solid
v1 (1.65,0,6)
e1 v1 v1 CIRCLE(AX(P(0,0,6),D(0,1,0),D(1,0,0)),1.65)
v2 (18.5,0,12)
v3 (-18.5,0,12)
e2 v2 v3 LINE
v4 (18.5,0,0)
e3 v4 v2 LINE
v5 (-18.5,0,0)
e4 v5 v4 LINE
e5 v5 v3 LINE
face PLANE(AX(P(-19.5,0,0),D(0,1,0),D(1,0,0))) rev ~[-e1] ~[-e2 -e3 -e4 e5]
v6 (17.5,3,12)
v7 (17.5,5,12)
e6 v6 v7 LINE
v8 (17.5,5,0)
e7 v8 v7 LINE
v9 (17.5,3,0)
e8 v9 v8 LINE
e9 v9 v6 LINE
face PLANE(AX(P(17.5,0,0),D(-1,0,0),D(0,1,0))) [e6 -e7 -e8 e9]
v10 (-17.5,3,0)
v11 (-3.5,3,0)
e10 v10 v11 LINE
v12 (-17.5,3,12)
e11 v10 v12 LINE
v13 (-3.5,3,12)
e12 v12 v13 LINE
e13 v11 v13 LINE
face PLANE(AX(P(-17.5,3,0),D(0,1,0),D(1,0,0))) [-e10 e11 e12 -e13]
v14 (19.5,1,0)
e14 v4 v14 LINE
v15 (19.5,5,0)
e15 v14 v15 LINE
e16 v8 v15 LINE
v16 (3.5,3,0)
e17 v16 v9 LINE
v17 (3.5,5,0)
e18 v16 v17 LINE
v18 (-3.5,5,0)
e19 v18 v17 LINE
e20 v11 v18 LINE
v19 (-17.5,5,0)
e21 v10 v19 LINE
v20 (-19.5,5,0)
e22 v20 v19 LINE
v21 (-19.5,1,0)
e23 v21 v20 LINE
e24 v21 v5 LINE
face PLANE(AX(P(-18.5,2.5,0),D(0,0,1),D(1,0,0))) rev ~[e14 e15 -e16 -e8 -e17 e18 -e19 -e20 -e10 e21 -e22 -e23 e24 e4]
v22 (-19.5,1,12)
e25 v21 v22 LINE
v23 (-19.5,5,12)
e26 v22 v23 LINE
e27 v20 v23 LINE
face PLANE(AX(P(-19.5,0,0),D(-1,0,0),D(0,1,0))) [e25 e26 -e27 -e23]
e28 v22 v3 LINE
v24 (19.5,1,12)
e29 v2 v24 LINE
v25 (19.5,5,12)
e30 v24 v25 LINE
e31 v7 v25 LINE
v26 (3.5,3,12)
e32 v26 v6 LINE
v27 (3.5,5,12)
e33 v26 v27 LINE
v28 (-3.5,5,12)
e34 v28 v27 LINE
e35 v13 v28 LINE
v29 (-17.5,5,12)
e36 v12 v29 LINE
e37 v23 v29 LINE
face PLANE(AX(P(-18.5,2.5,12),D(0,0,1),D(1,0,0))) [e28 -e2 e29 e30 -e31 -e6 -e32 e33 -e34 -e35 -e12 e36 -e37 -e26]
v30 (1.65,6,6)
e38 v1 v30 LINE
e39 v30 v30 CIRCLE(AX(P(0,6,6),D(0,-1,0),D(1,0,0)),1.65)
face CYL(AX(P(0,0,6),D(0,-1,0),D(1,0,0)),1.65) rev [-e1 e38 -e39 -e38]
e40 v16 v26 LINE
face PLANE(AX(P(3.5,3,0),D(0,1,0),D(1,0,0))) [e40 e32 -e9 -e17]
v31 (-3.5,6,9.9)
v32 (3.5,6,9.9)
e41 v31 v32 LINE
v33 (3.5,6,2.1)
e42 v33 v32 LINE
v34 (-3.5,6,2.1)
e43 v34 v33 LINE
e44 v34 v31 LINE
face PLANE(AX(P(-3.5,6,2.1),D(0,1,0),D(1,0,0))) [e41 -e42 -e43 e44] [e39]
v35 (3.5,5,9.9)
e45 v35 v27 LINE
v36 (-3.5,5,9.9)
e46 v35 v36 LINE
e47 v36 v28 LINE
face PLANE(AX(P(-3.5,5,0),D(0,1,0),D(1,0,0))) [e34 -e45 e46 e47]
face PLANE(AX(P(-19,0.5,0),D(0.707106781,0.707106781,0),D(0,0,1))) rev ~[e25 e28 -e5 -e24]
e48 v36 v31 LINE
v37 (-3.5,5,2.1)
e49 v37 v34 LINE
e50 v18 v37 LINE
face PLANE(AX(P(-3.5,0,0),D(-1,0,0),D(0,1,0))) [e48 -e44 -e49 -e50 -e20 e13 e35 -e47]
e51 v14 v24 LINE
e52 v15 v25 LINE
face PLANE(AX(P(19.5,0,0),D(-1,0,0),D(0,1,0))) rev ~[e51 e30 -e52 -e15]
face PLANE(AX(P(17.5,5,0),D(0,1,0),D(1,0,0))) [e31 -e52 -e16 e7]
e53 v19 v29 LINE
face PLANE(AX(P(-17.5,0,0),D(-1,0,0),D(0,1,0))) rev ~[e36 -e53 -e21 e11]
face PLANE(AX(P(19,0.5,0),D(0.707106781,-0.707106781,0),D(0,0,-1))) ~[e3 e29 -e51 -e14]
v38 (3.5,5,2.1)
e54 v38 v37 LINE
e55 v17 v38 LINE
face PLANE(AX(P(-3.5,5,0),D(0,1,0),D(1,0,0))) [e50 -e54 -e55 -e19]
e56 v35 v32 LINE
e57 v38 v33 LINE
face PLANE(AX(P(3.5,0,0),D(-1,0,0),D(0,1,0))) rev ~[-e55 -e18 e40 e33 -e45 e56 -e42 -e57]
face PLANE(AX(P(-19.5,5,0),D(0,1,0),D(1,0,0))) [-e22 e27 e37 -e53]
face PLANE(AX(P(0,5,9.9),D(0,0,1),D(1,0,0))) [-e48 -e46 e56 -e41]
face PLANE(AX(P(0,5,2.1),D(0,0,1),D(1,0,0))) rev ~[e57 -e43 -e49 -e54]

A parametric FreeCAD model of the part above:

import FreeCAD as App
import Part
import Sketcher


def edges_at(feature, points):
    """Names of the edges that pass closest to the given points."""
    edges = feature.Shape.Edges
    near = lambda p: min(range(len(edges)), key=lambda i: edges[i].distToShape(Part.Vertex(*p))[0])
    return sorted({f"Edge{near(p) + 1}" for p in points})


def add_polygon(sketch, points):
    """Adds a closed chain of lines whose ends are joined by coincident constraints."""
    first, n = sketch.GeometryCount, len(points)
    for a, b in zip(points, points[1:] + points[:1]):
        sketch.addGeometry(Part.LineSegment(App.Vector(*a, 0), App.Vector(*b, 0)), False)
    for i in range(n):
        sketch.addConstraint(Sketcher.Constraint("Coincident", first + i, 2, first + (i + 1) % n, 1))

doc = App.newDocument("Part")
params = doc.addObject("Spreadsheet::Sheet", "Params")
for row, (alias, value) in enumerate([
    ("sketch1_diameter", "3.3 mm"),
    ("pad1_length", "10 mm"),
    ("sketch2_width", "7 mm"),
    ("sketch2_height", "5 mm"),
    ("pad2_length", "12 mm"),
    ("sketch3_width", "14 mm"),
    ("sketch3_height", "3 mm"),
    ("pad3_length", "12 mm"),
    ("sketch4_width", "2 mm"),
    ("sketch4_height", "5 mm"),
    ("pad4_length", "12 mm"),
    ("sketch5_width", "14 mm"),
    ("sketch5_height", "3 mm"),
    ("pad5_length", "12 mm"),
    ("sketch6_width", "2 mm"),
    ("sketch6_height", "5 mm"),
    ("pad6_length", "12 mm"),
    ("sketch7_width", "7 mm"),
    ("sketch7_height", "2 mm"),
    ("pad7_length", "7.8 mm"),
    ("chamfer_size", "1 mm"),
], start=1):
    params.set(f"A{row}", alias)
    params.set(f"B{row}", "=" + value)
    params.setAlias(f"B{row}", alias)

body = doc.addObject("PartDesign::Body", "Body")

sketch1 = body.newObject("Sketcher::SketchObject", "Sketch")
sketch1.AttachmentSupport = (doc.getObject("XZ_Plane"), [""])
sketch1.MapMode = "FlatFace"
sketch1.addGeometry(Part.Circle(App.Vector(0, 6, 0), App.Vector(0, 0, 1), 1.6), False)
sketch1.addConstraint([
    Sketcher.Constraint("PointOnObject", 0, 3, -2),
    Sketcher.Constraint("Diameter", 0, 3.3),
    Sketcher.Constraint("DistanceY", -1, 1, 0, 3, 6.0),
])
sketch1.setExpression("Constraints[1]", "Params.sketch1_diameter")
pad1 = body.newObject("PartDesign::Pad", "Pad")
pad1.Profile = sketch1
pad1.setExpression("Length", "Params.pad1_length")
pad1.Reversed = True
body2 = doc.addObject("PartDesign::Body", "Body001")

sketch2 = body2.newObject("Sketcher::SketchObject", "Sketch001")
sketch2.AttachmentSupport = (doc.getObject("XY_Plane001"), [""])
sketch2.MapMode = "FlatFace"
add_polygon(sketch2, [(-4, 5), (-4, 0), (4, 0), (4, 5)])
sketch2.addConstraint([
    Sketcher.Constraint("Vertical", 0),
    Sketcher.Constraint("Horizontal", 1),
    Sketcher.Constraint("Vertical", 2),
    Sketcher.Constraint("Horizontal", 3),
    Sketcher.Constraint("Symmetric", 0, 2, 1, 2, -1, 1),
    Sketcher.Constraint("DistanceX", 1, 1, 1, 2, 7.0),
    Sketcher.Constraint("DistanceY", 0, 2, 0, 1, 5.0),
])
sketch2.setExpression("Constraints[9]", "Params.sketch2_width")
sketch2.setExpression("Constraints[10]", "Params.sketch2_height")
pad2 = body2.newObject("PartDesign::Pad", "Pad001")
pad2.Profile = sketch2
pad2.setExpression("Length", "Params.pad2_length")
body3 = doc.addObject("PartDesign::Body", "Body002")

sketch3 = body3.newObject("Sketcher::SketchObject", "Sketch002")
sketch3.AttachmentSupport = (doc.getObject("XY_Plane002"), [""])
sketch3.MapMode = "FlatFace"
add_polygon(sketch3, [(3.5, 3), (3.5, 0), (17.5, 0), (17.5, 3)])
sketch3.addConstraint([
    Sketcher.Constraint("Vertical", 0),
    Sketcher.Constraint("Horizontal", 1),
    Sketcher.Constraint("Vertical", 2),
    Sketcher.Constraint("Horizontal", 3),
    Sketcher.Constraint("PointOnObject", 0, 2, -1),
    Sketcher.Constraint("DistanceX", 1, 1, 1, 2, 14.0),
    Sketcher.Constraint("DistanceY", 0, 2, 0, 1, 3.0),
    Sketcher.Constraint("DistanceX", -1, 1, 0, 2, 3.5),
])
sketch3.setExpression("Constraints[9]", "Params.sketch3_width")
sketch3.setExpression("Constraints[10]", "Params.sketch3_height")
pad3 = body3.newObject("PartDesign::Pad", "Pad002")
pad3.Profile = sketch3
pad3.setExpression("Length", "Params.pad3_length")
body4 = doc.addObject("PartDesign::Body", "Body003")

sketch4 = body4.newObject("Sketcher::SketchObject", "Sketch003")
sketch4.AttachmentSupport = (doc.getObject("XY_Plane003"), [""])
sketch4.MapMode = "FlatFace"
add_polygon(sketch4, [(17.5, 5), (17.5, 0), (19.5, 0), (19.5, 5)])
sketch4.addConstraint([
    Sketcher.Constraint("Vertical", 0),
    Sketcher.Constraint("Horizontal", 1),
    Sketcher.Constraint("Vertical", 2),
    Sketcher.Constraint("Horizontal", 3),
    Sketcher.Constraint("PointOnObject", 0, 2, -1),
    Sketcher.Constraint("DistanceX", 1, 1, 1, 2, 2.0),
    Sketcher.Constraint("DistanceY", 0, 2, 0, 1, 5.0),
    Sketcher.Constraint("DistanceX", -1, 1, 0, 2, 17.5),
])
sketch4.setExpression("Constraints[9]", "Params.sketch4_width")
sketch4.setExpression("Constraints[10]", "Params.sketch4_height")
pad4 = body4.newObject("PartDesign::Pad", "Pad003")
pad4.Profile = sketch4
pad4.setExpression("Length", "Params.pad4_length")
body5 = doc.addObject("PartDesign::Body", "Body004")

sketch5 = body5.newObject("Sketcher::SketchObject", "Sketch004")
sketch5.AttachmentSupport = (doc.getObject("XY_Plane004"), [""])
sketch5.MapMode = "FlatFace"
add_polygon(sketch5, [(-17.5, 3), (-17.5, 0), (-3.5, 0), (-3.5, 3)])
sketch5.addConstraint([
    Sketcher.Constraint("Vertical", 0),
    Sketcher.Constraint("Horizontal", 1),
    Sketcher.Constraint("Vertical", 2),
    Sketcher.Constraint("Horizontal", 3),
    Sketcher.Constraint("PointOnObject", 0, 2, -1),
    Sketcher.Constraint("DistanceX", 1, 1, 1, 2, 14.0),
    Sketcher.Constraint("DistanceY", 0, 2, 0, 1, 3.0),
    Sketcher.Constraint("DistanceX", 0, 2, -1, 1, 17.5),
])
sketch5.setExpression("Constraints[9]", "Params.sketch5_width")
sketch5.setExpression("Constraints[10]", "Params.sketch5_height")
pad5 = body5.newObject("PartDesign::Pad", "Pad004")
pad5.Profile = sketch5
pad5.setExpression("Length", "Params.pad5_length")
body6 = doc.addObject("PartDesign::Body", "Body005")

sketch6 = body6.newObject("Sketcher::SketchObject", "Sketch005")
sketch6.AttachmentSupport = (doc.getObject("XY_Plane005"), [""])
sketch6.MapMode = "FlatFace"
add_polygon(sketch6, [(-19.5, 5), (-19.5, 0), (-17.5, 0), (-17.5, 5)])
sketch6.addConstraint([
    Sketcher.Constraint("Vertical", 0),
    Sketcher.Constraint("Horizontal", 1),
    Sketcher.Constraint("Vertical", 2),
    Sketcher.Constraint("Horizontal", 3),
    Sketcher.Constraint("PointOnObject", 0, 2, -1),
    Sketcher.Constraint("DistanceX", 1, 1, 1, 2, 2.0),
    Sketcher.Constraint("DistanceY", 0, 2, 0, 1, 5.0),
    Sketcher.Constraint("DistanceX", 0, 2, -1, 1, 19.5),
])
sketch6.setExpression("Constraints[9]", "Params.sketch6_width")
sketch6.setExpression("Constraints[10]", "Params.sketch6_height")
pad6 = body6.newObject("PartDesign::Pad", "Pad005")
pad6.Profile = sketch6
pad6.setExpression("Length", "Params.pad6_length")
body7 = doc.addObject("PartDesign::Body", "Body006")

sketch7 = body7.newObject("Sketcher::SketchObject", "Sketch006")
sketch7.AttachmentSupport = (doc.getObject("XY_Plane006"), [""])
sketch7.MapMode = "FlatFace"
sketch7.AttachmentOffset = App.Placement(App.Vector(0, 0, 2.1), App.Rotation())
add_polygon(sketch7, [(-3.5, 6), (-3.5, 4), (3.5, 4), (3.5, 6)])
sketch7.addConstraint([
    Sketcher.Constraint("Vertical", 0),
    Sketcher.Constraint("Horizontal", 1),
    Sketcher.Constraint("Vertical", 2),
    Sketcher.Constraint("Horizontal", 3),
    Sketcher.Constraint("DistanceX", 1, 1, 1, 2, 7.0),
    Sketcher.Constraint("DistanceY", 0, 2, 0, 1, 2.0),
    Sketcher.Constraint("DistanceY", -1, 1, 0, 2, 4.0),
    Sketcher.Constraint("DistanceX", 0, 2, -1, 1, 3.5),
])
sketch7.setExpression("Constraints[8]", "Params.sketch7_width")
sketch7.setExpression("Constraints[9]", "Params.sketch7_height")
pad7 = body7.newObject("PartDesign::Pad", "Pad006")
pad7.Profile = sketch7
pad7.setExpression("Length", "Params.pad7_length")
doc.recompute()

boolean = body7.newObject("PartDesign::Boolean", "Boolean")
boolean.Type = "Fuse"
boolean.addObjects([body2])
doc.recompute()

boolean2 = body7.newObject("PartDesign::Boolean", "Boolean001")
boolean2.Type = "Fuse"
boolean2.addObjects([body3])
doc.recompute()

boolean3 = body7.newObject("PartDesign::Boolean", "Boolean002")
boolean3.Type = "Fuse"
boolean3.addObjects([body4])
doc.recompute()

boolean4 = body7.newObject("PartDesign::Boolean", "Boolean003")
boolean4.Type = "Fuse"
boolean4.addObjects([body5])
doc.recompute()

boolean5 = body7.newObject("PartDesign::Boolean", "Boolean004")
boolean5.Type = "Fuse"
boolean5.addObjects([body6])
doc.recompute()

boolean6 = body7.newObject("PartDesign::Boolean", "Boolean005")
boolean6.Type = "Cut"
boolean6.addObjects([body])
doc.recompute()

chamfer = body7.newObject("PartDesign::Chamfer", "Chamfer")
chamfer.Base = (boolean6, edges_at(boolean6, [(-19.5, 0, 6), (19.5, 0, 6)]))
chamfer.setExpression("Size", "Params.chamfer_size")

doc.recompute()
